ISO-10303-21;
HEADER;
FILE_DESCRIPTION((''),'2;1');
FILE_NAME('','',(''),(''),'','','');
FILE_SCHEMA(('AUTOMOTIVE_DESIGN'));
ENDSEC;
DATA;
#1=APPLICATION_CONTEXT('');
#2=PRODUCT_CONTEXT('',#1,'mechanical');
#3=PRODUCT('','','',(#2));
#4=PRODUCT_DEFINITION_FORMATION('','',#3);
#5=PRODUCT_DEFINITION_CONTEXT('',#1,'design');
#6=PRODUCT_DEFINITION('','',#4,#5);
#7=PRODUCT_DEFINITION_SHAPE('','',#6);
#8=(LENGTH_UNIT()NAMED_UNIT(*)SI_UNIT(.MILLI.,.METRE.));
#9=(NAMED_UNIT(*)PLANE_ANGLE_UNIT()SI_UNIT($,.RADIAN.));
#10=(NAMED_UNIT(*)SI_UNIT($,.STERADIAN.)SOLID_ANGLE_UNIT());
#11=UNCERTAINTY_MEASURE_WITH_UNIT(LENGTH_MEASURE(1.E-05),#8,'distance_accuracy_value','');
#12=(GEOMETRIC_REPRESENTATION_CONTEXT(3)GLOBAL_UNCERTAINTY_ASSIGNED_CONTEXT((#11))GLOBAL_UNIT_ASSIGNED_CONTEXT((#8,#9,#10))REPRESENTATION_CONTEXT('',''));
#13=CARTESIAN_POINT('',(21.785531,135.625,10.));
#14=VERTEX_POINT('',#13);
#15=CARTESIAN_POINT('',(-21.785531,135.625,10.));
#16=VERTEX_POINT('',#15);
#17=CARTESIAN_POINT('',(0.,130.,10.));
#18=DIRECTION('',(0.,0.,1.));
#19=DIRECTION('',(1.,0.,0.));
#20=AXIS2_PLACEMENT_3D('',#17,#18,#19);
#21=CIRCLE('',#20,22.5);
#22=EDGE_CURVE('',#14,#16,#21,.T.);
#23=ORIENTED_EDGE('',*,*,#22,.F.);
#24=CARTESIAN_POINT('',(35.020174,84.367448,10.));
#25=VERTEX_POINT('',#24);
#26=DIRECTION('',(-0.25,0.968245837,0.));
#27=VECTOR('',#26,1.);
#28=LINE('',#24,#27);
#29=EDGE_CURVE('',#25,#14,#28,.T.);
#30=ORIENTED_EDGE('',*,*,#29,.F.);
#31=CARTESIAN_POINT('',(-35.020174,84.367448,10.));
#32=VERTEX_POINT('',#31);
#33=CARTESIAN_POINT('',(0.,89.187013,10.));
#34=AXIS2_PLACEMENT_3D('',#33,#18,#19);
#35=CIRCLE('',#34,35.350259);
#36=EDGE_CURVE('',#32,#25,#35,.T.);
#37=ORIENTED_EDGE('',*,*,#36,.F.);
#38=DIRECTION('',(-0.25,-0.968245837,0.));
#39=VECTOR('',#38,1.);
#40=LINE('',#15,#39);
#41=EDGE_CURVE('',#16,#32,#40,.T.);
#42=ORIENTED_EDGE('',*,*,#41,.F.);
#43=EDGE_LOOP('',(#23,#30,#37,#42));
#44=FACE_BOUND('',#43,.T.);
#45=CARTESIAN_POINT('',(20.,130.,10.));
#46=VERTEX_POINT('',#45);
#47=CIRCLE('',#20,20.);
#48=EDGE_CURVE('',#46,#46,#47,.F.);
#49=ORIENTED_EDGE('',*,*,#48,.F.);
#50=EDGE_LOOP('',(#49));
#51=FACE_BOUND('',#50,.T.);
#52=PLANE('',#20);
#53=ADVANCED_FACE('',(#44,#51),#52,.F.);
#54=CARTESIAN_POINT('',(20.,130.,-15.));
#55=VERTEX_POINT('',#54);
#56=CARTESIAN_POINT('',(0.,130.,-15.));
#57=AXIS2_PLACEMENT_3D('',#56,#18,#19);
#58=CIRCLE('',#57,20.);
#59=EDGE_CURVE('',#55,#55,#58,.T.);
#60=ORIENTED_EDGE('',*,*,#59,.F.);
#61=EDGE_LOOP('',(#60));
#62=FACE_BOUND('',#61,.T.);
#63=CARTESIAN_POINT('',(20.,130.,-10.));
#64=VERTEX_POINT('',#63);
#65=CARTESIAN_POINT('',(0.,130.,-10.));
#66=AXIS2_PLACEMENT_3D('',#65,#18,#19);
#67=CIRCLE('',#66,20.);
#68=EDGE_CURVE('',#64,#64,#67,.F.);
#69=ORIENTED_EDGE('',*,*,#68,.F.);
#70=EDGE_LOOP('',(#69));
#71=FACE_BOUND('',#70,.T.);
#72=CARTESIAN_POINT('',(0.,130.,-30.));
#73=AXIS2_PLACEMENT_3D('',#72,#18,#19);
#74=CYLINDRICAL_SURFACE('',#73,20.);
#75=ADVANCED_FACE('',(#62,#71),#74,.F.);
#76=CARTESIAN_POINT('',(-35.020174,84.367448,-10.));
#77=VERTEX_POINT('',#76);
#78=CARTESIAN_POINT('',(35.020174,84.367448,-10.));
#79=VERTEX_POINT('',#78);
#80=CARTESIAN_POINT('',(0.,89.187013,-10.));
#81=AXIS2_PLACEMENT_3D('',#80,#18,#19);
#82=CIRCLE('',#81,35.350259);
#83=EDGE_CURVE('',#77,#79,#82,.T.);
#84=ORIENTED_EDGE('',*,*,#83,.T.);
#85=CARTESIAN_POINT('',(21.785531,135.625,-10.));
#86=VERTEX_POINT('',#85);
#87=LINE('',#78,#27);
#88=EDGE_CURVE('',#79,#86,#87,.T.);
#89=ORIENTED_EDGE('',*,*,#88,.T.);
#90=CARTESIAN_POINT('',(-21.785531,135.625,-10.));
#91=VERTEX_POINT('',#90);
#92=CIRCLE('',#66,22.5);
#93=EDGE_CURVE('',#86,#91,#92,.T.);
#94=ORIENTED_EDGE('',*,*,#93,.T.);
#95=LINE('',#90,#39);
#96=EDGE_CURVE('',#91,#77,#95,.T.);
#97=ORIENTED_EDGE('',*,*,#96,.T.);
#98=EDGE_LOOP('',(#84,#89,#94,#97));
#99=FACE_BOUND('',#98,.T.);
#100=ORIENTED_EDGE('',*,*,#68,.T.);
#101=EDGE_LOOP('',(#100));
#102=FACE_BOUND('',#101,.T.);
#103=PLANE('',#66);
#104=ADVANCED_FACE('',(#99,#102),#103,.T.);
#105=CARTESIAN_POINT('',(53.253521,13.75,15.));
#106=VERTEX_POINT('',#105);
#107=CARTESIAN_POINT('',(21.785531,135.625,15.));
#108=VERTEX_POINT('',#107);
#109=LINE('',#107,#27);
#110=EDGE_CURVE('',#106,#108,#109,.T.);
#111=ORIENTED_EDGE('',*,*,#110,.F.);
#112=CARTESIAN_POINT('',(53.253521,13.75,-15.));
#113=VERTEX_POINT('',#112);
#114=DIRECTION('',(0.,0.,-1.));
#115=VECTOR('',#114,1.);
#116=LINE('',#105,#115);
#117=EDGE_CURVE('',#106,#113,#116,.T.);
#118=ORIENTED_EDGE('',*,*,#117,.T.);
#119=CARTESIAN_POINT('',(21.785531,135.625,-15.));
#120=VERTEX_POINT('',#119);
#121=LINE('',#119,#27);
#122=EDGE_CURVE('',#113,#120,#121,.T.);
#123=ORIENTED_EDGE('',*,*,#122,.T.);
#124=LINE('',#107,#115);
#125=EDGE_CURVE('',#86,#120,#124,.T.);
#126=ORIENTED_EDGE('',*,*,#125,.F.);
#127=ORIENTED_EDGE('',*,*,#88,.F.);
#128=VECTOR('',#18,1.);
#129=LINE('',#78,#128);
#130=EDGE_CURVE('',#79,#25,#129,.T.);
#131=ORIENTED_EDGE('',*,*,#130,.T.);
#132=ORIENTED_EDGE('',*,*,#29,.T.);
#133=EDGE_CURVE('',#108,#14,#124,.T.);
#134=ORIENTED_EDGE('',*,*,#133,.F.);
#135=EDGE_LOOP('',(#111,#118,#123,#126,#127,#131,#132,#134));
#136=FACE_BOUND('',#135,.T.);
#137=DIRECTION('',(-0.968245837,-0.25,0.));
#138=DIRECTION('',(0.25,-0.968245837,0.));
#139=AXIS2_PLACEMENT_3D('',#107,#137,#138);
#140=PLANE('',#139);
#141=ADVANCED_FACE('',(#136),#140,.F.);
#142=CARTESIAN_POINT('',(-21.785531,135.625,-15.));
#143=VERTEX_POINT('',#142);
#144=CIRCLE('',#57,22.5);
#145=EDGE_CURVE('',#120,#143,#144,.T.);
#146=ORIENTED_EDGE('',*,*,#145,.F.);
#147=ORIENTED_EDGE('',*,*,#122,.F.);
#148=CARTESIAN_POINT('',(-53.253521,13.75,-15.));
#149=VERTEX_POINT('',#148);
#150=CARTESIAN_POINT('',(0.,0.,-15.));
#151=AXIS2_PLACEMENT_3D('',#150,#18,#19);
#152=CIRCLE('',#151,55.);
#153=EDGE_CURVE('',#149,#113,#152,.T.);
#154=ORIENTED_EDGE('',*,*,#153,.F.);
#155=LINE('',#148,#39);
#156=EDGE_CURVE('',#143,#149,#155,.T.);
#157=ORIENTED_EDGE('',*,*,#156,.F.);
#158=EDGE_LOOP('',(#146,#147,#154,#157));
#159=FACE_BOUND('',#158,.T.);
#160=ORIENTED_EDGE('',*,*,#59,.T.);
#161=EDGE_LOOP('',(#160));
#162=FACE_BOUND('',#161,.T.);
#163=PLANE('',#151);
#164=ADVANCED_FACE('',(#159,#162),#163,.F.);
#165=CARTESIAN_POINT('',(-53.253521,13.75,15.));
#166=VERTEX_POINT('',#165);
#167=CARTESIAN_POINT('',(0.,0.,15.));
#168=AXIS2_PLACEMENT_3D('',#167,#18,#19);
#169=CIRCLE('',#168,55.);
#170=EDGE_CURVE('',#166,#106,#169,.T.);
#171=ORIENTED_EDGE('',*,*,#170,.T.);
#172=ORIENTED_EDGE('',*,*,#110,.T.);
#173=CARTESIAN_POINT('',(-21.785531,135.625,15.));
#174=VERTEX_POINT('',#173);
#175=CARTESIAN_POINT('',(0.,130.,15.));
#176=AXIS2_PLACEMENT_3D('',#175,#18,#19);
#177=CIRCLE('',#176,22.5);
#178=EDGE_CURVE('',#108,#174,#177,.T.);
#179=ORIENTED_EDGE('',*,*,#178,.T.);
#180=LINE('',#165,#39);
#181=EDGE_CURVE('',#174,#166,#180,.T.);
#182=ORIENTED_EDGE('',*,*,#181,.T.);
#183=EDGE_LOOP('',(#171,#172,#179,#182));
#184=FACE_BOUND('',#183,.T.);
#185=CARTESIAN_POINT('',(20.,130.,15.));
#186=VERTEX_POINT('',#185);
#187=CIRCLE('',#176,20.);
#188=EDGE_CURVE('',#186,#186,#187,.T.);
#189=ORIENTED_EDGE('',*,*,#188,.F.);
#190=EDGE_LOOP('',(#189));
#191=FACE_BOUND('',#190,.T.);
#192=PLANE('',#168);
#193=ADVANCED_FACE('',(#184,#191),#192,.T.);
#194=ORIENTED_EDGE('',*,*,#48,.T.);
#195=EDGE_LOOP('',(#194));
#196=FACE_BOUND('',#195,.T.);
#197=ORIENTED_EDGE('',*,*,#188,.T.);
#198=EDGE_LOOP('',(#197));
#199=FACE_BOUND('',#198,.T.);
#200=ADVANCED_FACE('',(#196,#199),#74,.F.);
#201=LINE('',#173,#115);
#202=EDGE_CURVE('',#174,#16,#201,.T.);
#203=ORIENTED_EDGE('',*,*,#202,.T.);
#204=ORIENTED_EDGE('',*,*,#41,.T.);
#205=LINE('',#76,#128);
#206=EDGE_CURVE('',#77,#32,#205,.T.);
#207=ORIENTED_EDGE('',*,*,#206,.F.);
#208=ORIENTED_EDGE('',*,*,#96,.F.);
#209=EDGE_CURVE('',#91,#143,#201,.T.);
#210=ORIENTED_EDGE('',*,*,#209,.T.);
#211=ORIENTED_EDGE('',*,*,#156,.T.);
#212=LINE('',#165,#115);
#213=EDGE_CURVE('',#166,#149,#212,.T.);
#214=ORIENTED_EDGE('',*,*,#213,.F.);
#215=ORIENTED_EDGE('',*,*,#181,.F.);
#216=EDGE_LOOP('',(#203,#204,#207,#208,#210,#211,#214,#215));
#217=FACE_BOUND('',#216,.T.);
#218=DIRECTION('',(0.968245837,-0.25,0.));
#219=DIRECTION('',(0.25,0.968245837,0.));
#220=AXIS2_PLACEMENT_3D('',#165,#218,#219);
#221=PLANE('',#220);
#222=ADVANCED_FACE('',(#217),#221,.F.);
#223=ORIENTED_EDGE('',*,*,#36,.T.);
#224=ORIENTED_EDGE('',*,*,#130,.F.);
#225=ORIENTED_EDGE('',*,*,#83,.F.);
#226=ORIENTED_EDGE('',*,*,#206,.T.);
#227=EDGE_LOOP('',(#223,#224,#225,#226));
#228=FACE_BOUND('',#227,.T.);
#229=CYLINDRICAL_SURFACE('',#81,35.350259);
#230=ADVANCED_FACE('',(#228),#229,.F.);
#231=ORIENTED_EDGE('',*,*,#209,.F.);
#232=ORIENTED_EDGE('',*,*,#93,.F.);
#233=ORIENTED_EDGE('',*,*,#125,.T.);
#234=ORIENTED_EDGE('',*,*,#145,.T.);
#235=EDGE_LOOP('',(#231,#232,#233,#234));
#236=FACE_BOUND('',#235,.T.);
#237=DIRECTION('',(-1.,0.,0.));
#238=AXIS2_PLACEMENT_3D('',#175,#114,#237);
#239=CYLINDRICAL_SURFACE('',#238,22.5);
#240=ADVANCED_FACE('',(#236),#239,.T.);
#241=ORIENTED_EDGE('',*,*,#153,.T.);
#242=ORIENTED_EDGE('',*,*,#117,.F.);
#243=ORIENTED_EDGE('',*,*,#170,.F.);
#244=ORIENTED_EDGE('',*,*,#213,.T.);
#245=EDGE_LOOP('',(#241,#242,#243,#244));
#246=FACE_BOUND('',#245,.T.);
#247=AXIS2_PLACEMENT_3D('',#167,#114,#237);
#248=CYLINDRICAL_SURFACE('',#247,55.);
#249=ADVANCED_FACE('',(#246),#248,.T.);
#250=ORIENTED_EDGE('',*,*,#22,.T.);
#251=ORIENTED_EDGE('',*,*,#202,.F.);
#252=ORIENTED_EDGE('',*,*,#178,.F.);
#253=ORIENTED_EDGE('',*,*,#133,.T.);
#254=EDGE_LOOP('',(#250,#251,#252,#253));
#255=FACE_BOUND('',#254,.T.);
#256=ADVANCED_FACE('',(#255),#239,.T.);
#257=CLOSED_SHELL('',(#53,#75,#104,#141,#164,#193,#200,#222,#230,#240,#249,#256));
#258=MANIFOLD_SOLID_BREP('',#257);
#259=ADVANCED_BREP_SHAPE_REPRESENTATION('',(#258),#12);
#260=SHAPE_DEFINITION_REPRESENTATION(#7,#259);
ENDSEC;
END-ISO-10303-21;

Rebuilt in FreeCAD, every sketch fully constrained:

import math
import FreeCAD as App
import Part
import Sketcher
from FreeCAD import Vector

doc = App.newDocument("Part")
body = doc.addObject("PartDesign::Body", "Body")

# Sketch on XY plane
sketch1 = body.newObject("Sketcher::SketchObject", "Sketch")
sketch1.AttachmentSupport = (doc.getObject("XY_Plane"), [""])
sketch1.MapMode = "FlatFace"
sketch1.addGeometry(Part.LineSegment(Vector(-22, 136, 0), Vector(-53, 14, 0)), False)
sketch1.addGeometry(Part.ArcOfCircle(Part.Circle(Vector(0, 0, 0), Vector(0, 0, 1), 55), math.radians(166), math.radians(374)), False)
sketch1.addGeometry(Part.LineSegment(Vector(53, 14, 0), Vector(22, 136, 0)), False)
sketch1.addGeometry(Part.ArcOfCircle(Part.Circle(Vector(0, 130, 0), Vector(0, 0, 1), 22), math.radians(14), math.radians(166)), False)
sketch1.addConstraint(Sketcher.Constraint("Tangent", 0, 2, 1, 1))
sketch1.addConstraint(Sketcher.Constraint("Tangent", 1, 2, 2, 1))
sketch1.addConstraint(Sketcher.Constraint("Tangent", 2, 2, 3, 1))
sketch1.addConstraint(Sketcher.Constraint("Tangent", 3, 2, 0, 1))
sketch1.addConstraint(Sketcher.Constraint("Coincident", 1, 3, -1, 1))
sketch1.addConstraint(Sketcher.Constraint("PointOnObject", 3, 3, -2))
sketch1.addConstraint(Sketcher.Constraint("Radius", 1, 55.0))
sketch1.addConstraint(Sketcher.Constraint("Radius", 3, 22.5))
sketch1.addConstraint(Sketcher.Constraint("DistanceY", -1, 1, 3, 3, 130.0))
pad1 = body.newObject("PartDesign::Pad", "Pad")
pad1.Profile = sketch1
pad1.Length = 30
pad1.Midplane = True

# Sketch on XY plane
sketch2 = body.newObject("Sketcher::SketchObject", "Sketch001")
sketch2.AttachmentSupport = (doc.getObject("XY_Plane"), [""])
sketch2.MapMode = "FlatFace"
sketch2.AttachmentOffset = App.Placement(Vector(0, 0, 15), App.Rotation())
sketch2.addGeometry(Part.Circle(Vector(0, 130, 0), Vector(0, 0, 1), 20), False)
sketch2.addConstraint(Sketcher.Constraint("PointOnObject", 0, 3, -2))
sketch2.addConstraint(Sketcher.Constraint("Diameter", 0, 40.0))
sketch2.addConstraint(Sketcher.Constraint("DistanceY", -1, 1, 0, 3, 130.0))
pocket1 = body.newObject("PartDesign::Pocket", "Pocket")
pocket1.Profile = sketch2
pocket1.Length = 45

# Sketch on XY plane
sketch3 = body.newObject("Sketcher::SketchObject", "Sketch002")
sketch3.AttachmentSupport = (doc.getObject("XY_Plane"), [""])
sketch3.MapMode = "FlatFace"
sketch3.addGeometry(Part.LineSegment(Vector(-22, 136, 0), Vector(-35, 84, 0)), False)
sketch3.addGeometry(Part.ArcOfCircle(Part.Circle(Vector(0, 89, 0), Vector(0, 0, 1), 35), math.radians(-172), math.radians(-8)), False)
sketch3.addGeometry(Part.LineSegment(Vector(35, 84, 0), Vector(22, 136, 0)), False)
sketch3.addGeometry(Part.ArcOfCircle(Part.Circle(Vector(0, 130, 0), Vector(0, 0, 1), 22), math.radians(14), math.radians(166)), False)
sketch3.addConstraint(Sketcher.Constraint("Coincident", 0, 2, 1, 1))
sketch3.addConstraint(Sketcher.Constraint("Coincident", 1, 2, 2, 1))
sketch3.addConstraint(Sketcher.Constraint("Tangent", 2, 2, 3, 1))
sketch3.addConstraint(Sketcher.Constraint("Tangent", 3, 2, 0, 1))
sketch3.addConstraint(Sketcher.Constraint("Symmetric", 0, 2, 1, 2, -2))
sketch3.addConstraint(Sketcher.Constraint("PointOnObject", 3, 3, -2))
sketch3.addConstraint(Sketcher.Constraint("Radius", 3, 22.5))
sketch3.addConstraint(Sketcher.Constraint("DistanceY", -1, 1, 3, 3, 130.0))
sketch3.addConstraint(Sketcher.Constraint("Radius", 1, 35.350259))
sketch3.addConstraint(Sketcher.Constraint("DistanceY", -1, 1, 2, 2, 135.625))
sketch3.addConstraint(Sketcher.Constraint("Distance", 0, 52.938572))
pocket2 = body.newObject("PartDesign::Pocket", "Pocket001")
pocket2.Profile = sketch3
pocket2.Length = 20
pocket2.Midplane = True

doc.recompute()
